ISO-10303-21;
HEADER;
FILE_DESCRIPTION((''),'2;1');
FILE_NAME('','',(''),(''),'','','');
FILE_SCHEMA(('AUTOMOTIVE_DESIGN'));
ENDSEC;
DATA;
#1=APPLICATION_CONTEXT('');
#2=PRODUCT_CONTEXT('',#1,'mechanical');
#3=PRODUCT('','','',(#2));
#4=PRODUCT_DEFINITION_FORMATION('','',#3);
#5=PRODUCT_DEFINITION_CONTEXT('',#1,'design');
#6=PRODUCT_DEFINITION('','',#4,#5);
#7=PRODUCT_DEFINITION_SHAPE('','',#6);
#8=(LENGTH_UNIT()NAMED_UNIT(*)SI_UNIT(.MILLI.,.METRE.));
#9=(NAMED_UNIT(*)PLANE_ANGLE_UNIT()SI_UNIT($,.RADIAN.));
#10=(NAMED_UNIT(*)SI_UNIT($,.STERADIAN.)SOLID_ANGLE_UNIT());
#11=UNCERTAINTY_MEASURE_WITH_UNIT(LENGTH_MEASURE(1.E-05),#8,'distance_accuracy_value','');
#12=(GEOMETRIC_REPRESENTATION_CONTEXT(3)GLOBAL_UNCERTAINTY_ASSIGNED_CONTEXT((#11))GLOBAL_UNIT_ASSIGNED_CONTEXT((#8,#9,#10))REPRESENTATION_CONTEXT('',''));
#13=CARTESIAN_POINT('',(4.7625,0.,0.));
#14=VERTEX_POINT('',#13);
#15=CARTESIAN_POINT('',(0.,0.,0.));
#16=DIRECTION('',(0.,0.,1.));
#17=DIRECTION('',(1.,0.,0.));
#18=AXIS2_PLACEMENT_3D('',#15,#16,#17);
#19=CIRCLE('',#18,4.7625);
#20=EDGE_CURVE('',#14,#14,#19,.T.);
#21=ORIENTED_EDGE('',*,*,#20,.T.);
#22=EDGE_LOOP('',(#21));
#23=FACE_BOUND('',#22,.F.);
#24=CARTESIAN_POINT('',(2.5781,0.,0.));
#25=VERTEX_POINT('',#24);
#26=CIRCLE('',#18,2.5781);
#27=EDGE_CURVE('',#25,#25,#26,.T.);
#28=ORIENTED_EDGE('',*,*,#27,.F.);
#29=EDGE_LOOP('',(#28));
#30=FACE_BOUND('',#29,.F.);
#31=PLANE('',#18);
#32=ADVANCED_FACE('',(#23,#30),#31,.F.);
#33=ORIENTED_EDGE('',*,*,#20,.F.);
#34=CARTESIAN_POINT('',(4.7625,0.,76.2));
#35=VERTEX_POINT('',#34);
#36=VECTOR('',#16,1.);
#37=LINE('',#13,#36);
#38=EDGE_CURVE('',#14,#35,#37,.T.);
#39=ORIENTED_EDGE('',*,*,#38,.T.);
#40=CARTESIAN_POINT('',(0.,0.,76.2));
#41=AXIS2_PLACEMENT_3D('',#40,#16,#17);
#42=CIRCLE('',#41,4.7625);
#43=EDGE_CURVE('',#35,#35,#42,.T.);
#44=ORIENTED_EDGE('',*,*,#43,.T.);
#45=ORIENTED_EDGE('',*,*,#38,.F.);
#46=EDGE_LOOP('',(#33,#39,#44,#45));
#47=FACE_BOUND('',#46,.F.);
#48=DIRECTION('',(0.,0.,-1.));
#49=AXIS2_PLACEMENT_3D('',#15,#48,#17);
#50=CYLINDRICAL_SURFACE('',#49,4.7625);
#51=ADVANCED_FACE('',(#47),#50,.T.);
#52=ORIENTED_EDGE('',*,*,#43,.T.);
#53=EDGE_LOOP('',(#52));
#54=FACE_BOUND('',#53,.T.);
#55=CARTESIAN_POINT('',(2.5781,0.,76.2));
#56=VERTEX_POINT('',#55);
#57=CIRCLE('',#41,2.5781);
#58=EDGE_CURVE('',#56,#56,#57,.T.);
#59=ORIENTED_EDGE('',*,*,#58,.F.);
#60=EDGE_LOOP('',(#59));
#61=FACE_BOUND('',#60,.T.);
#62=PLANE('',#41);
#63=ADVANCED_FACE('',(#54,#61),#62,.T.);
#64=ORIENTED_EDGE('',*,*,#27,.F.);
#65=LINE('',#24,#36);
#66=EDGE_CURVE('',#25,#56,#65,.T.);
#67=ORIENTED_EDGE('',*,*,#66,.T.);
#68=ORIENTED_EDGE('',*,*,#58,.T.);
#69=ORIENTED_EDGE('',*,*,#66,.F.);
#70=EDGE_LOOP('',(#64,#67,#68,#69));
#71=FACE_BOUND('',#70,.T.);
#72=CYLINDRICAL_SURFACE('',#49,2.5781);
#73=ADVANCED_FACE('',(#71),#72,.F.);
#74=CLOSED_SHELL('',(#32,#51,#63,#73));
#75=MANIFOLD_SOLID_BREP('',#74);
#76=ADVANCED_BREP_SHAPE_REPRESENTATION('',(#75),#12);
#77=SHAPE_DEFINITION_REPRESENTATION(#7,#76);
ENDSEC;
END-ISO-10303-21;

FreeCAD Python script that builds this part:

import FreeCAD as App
import Part
import Sketcher
from FreeCAD import Vector
Q = App.Units.Quantity

doc = App.newDocument("Part")
body = doc.addObject("PartDesign::Body", "Body")

sketch1 = body.newObject("Sketcher::SketchObject", "Sketch")
sketch1.AttachmentSupport = (doc.getObject("XY_Plane"), [""])
sketch1.MapMode = "FlatFace"
sketch1.addGeometry(Part.Circle(Vector(0, 0, 0), Vector(0, 0, 1), 4.8), False)
sketch1.addGeometry(Part.Circle(Vector(0, 0, 0), Vector(0, 0, 1), 2.6), False)
sketch1.addConstraint(Sketcher.Constraint("Coincident", 0, 3, -1, 1))
sketch1.addConstraint(Sketcher.Constraint("Coincident", 1, 3, -1, 1))
sketch1.addConstraint(Sketcher.Constraint("Diameter", 0, Q("0.375 in")))
sketch1.addConstraint(Sketcher.Constraint("Diameter", 1, Q("0.203 in")))
pad1 = body.newObject("PartDesign::Pad", "Pad")
pad1.Profile = sketch1
pad1.Length = Q("3 in")

doc.recompute()
